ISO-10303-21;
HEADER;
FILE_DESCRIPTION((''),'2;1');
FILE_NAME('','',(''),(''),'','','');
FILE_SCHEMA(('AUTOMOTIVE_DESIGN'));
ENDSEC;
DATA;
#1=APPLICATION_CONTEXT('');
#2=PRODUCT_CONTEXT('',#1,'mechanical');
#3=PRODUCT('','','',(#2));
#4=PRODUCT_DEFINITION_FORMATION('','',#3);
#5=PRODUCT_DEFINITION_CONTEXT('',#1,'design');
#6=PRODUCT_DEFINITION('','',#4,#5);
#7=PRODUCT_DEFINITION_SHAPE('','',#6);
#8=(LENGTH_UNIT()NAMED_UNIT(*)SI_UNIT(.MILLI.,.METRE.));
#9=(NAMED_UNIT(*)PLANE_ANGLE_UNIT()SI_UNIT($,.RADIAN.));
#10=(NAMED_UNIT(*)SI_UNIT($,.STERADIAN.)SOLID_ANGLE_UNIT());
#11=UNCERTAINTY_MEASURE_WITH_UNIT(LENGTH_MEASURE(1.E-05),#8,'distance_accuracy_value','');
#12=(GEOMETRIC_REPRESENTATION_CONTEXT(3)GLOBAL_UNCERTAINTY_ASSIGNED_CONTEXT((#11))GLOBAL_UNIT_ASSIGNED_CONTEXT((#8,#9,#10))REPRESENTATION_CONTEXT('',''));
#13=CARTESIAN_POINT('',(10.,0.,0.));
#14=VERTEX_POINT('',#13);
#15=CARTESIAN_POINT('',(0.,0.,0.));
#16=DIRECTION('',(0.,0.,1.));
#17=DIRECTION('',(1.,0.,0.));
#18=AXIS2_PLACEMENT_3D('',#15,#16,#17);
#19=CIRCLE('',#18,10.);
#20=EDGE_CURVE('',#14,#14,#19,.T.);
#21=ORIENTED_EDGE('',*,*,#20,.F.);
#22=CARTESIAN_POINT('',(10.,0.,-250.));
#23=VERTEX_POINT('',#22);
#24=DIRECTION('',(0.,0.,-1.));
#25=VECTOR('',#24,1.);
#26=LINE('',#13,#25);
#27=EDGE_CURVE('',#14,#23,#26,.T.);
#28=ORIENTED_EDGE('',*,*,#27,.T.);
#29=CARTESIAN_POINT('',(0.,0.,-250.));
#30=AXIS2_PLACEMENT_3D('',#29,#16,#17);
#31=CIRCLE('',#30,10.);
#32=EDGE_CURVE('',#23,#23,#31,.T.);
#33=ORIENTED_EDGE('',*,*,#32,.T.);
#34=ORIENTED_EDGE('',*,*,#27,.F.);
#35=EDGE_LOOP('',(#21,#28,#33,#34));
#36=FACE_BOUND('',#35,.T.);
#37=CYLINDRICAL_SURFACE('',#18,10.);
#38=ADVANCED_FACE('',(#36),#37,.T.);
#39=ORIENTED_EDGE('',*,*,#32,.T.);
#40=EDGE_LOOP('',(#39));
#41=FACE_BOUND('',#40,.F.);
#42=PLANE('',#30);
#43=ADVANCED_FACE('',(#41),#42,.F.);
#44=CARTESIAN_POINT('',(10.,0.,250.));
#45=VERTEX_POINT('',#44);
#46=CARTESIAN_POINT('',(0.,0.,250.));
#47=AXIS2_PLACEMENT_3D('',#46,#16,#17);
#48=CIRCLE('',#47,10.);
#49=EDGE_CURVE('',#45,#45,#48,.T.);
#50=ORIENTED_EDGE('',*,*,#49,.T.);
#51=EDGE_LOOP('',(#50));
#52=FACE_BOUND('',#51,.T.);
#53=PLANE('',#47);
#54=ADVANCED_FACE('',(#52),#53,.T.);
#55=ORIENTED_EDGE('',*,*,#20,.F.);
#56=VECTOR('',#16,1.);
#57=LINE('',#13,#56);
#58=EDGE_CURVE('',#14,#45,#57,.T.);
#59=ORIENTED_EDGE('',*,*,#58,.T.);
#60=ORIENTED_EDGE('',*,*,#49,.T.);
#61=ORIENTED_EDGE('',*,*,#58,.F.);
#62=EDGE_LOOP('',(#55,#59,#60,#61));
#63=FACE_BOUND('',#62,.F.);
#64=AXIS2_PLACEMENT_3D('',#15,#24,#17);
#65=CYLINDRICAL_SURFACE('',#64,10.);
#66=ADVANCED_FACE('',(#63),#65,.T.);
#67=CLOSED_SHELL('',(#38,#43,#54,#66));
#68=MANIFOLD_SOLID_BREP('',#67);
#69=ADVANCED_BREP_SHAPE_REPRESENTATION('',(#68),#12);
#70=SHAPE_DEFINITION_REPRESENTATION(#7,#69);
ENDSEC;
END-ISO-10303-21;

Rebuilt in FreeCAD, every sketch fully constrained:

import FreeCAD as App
import Part
import Sketcher

doc = App.newDocument("Part")
params = doc.addObject("Spreadsheet::Sheet", "Params")
for row, (alias, value) in enumerate([
    ("sketch1_diameter", "20 mm"),
    ("pad1_length", "500 mm"),
], start=1):
    params.set(f"A{row}", alias)
    params.set(f"B{row}", "=" + value)
    params.setAlias(f"B{row}", alias)

body = doc.addObject("PartDesign::Body", "Body")

# Sketch on XY plane
sketch1 = doc.addObject("Sketcher::SketchObject", "Sketch")
body.addObject(sketch1)
sketch1.AttachmentSupport = (doc.XY_Plane, [""])
sketch1.MapMode = "FlatFace"
sketch1.addGeometry(Part.Circle(App.Vector(0, 0, 0), App.Vector(0, 0, 1), 10), False)
sketch1.addConstraint([
    Sketcher.Constraint("Coincident", 0, 3, -1, 1),
    Sketcher.Constraint("Diameter", 0, 20.0),
])
sketch1.setExpression("Constraints[1]", "Params.sketch1_diameter")
pad1 = doc.addObject("PartDesign::Pad", "Pad")
body.addObject(pad1)
pad1.Profile = sketch1
pad1.setExpression("Length", "Params.pad1_length")
pad1.Midplane = True

doc.recompute()
